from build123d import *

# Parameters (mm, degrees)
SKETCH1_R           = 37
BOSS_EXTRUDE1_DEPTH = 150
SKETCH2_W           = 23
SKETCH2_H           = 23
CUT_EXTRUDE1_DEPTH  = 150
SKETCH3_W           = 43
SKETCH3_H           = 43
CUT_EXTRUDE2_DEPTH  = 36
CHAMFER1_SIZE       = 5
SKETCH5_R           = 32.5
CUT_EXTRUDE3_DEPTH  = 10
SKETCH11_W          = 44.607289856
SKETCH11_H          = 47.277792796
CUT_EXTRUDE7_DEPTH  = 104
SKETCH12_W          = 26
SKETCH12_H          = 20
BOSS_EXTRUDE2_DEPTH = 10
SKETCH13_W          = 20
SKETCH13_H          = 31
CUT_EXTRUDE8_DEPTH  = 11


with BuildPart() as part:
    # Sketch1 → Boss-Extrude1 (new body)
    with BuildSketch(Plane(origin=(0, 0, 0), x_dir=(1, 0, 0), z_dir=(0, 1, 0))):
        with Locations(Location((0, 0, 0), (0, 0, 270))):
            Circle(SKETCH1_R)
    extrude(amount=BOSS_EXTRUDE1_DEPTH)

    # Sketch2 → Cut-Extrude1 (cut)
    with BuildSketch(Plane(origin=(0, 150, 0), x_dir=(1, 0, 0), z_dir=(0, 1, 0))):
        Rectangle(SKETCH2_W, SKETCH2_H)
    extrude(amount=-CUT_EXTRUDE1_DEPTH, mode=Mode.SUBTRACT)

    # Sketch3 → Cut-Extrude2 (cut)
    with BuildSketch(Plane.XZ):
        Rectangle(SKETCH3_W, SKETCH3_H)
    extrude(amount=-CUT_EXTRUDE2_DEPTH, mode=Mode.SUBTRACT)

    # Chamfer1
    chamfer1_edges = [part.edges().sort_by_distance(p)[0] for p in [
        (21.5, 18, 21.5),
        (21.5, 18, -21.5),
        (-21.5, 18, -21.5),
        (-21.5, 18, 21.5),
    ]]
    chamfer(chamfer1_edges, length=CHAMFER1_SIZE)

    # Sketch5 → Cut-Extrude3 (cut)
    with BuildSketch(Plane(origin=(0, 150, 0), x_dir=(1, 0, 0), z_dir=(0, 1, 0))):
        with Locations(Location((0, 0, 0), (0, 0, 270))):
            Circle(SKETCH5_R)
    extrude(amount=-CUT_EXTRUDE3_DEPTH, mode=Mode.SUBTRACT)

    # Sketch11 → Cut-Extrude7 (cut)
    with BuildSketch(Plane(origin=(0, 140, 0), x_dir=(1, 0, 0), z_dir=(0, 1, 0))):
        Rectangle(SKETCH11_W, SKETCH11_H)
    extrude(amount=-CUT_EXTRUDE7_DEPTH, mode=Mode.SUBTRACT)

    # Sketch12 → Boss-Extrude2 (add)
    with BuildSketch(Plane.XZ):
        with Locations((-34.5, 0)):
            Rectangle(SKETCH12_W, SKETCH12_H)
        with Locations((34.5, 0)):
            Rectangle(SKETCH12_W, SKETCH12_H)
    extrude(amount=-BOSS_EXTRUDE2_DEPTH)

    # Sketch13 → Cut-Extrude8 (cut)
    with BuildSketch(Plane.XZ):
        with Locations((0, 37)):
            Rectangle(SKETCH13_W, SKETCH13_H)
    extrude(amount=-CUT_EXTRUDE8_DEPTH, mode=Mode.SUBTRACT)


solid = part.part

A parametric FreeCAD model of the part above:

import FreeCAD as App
import Part
import Sketcher
from FreeCAD import Vector
Q = App.Units.Quantity


def edges_at(feature, points):
    """Names of the edges that pass closest to the given points."""
    edges = feature.Shape.Edges
    near = lambda p: min(range(len(edges)), key=lambda i: edges[i].distToShape(Part.Vertex(*p))[0])
    return sorted({f"Edge{near(p) + 1}" for p in points})


def add_polygon(sketch, points):
    """Adds a closed chain of lines whose ends are joined by coincident constraints."""
    first, n = sketch.GeometryCount, len(points)
    for a, b in zip(points, points[1:] + points[:1]):
        sketch.addGeometry(Part.LineSegment(App.Vector(*a, 0), App.Vector(*b, 0)), False)
    for i in range(n):
        sketch.addConstraint(Sketcher.Constraint("Coincident", first + i, 2, first + (i + 1) % n, 1))

doc = App.newDocument("Part")
body = doc.addObject("PartDesign::Body", "Body")

# Sketch on XZ plane
sketch1 = body.newObject("Sketcher::SketchObject", "Sketch")
sketch1.AttachmentSupport = (doc.getObject("XZ_Plane"), [""])
sketch1.MapMode = "FlatFace"
sketch1.addGeometry(Part.Circle(Vector(0, 0, 0), Vector(0, 0, 1), 37), False)
sketch1.addConstraint(Sketcher.Constraint("Coincident", 0, 3, -1, 1))
sketch1.addConstraint(Sketcher.Constraint("Diameter", 0, Q("74 mm")))
pad1 = body.newObject("PartDesign::Pad", "Pad")
pad1.Profile = sketch1
pad1.Length = 150
pad1.Reversed = True

# Sketch on XZ plane
sketch2 = body.newObject("Sketcher::SketchObject", "Sketch001")
sketch2.AttachmentSupport = (doc.getObject("XZ_Plane"), [""])
sketch2.MapMode = "FlatFace"
sketch2.AttachmentOffset = App.Placement(Vector(0, 0, -150), App.Rotation())
add_polygon(sketch2, [(-12, -12), (-12, 12), (12, 12), (12, -12)])  # lines 0-3
sketch2.addConstraint(Sketcher.Constraint("Vertical", 0))
sketch2.addConstraint(Sketcher.Constraint("Horizontal", 1))
sketch2.addConstraint(Sketcher.Constraint("Vertical", 2))
sketch2.addConstraint(Sketcher.Constraint("Horizontal", 3))
sketch2.addConstraint(Sketcher.Constraint("Symmetric", 0, 2, 2, 2, -1, 1))
sketch2.addConstraint(Sketcher.Constraint("Equal", 3, 0))
sketch2.addConstraint(Sketcher.Constraint("DistanceX", 1, 1, 1, 2, Q("23 mm")))
pocket1 = body.newObject("PartDesign::Pocket", "Pocket")
pocket1.Profile = sketch2
pocket1.Length = 150
pocket1.Reversed = True

# Sketch on XZ plane
sketch3 = body.newObject("Sketcher::SketchObject", "Sketch002")
sketch3.AttachmentSupport = (doc.getObject("XZ_Plane"), [""])
sketch3.MapMode = "FlatFace"
add_polygon(sketch3, [(-22, 22), (-22, -22), (22, -22), (22, 22)])  # lines 0-3
sketch3.addConstraint(Sketcher.Constraint("Vertical", 0))
sketch3.addConstraint(Sketcher.Constraint("Horizontal", 1))
sketch3.addConstraint(Sketcher.Constraint("Vertical", 2))
sketch3.addConstraint(Sketcher.Constraint("Horizontal", 3))
sketch3.addConstraint(Sketcher.Constraint("Symmetric", 0, 2, 2, 2, -1, 1))
sketch3.addConstraint(Sketcher.Constraint("Equal", 3, 0))
sketch3.addConstraint(Sketcher.Constraint("DistanceX", 1, 1, 1, 2, Q("43 mm")))
pocket2 = body.newObject("PartDesign::Pocket", "Pocket001")
pocket2.Profile = sketch3
pocket2.Length = 36
doc.recompute()

chamfer = body.newObject("PartDesign::Chamfer", "Chamfer")
chamfer.Base = (pocket2, edges_at(pocket2, [
    (21.5, 18, 21.5),
    (21.5, 18, -21.5),
    (-21.5, 18, -21.5),
    (-21.5, 18, 21.5),
]))
chamfer.Size = 5

# Sketch on XZ plane
sketch4 = body.newObject("Sketcher::SketchObject", "Sketch003")
sketch4.AttachmentSupport = (doc.getObject("XZ_Plane"), [""])
sketch4.MapMode = "FlatFace"
sketch4.AttachmentOffset = App.Placement(Vector(0, 0, -150), App.Rotation())
sketch4.addGeometry(Part.Circle(Vector(0, 0, 0), Vector(0, 0, 1), 32), False)
sketch4.addConstraint(Sketcher.Constraint("Coincident", 0, 3, -1, 1))
sketch4.addConstraint(Sketcher.Constraint("Diameter", 0, Q("65 mm")))
pocket3 = body.newObject("PartDesign::Pocket", "Pocket002")
pocket3.Profile = sketch4
pocket3.Length = 10
pocket3.Reversed = True

# Sketch on XZ plane
sketch5 = body.newObject("Sketcher::SketchObject", "Sketch004")
sketch5.AttachmentSupport = (doc.getObject("XZ_Plane"), [""])
sketch5.MapMode = "FlatFace"
sketch5.AttachmentOffset = App.Placement(Vector(0, 0, -140), App.Rotation())
add_polygon(sketch5, [(-22, -24), (-22, 24), (22, 24), (22, -24)])  # lines 0-3
sketch5.addConstraint(Sketcher.Constraint("Vertical", 0))
sketch5.addConstraint(Sketcher.Constraint("Horizontal", 1))
sketch5.addConstraint(Sketcher.Constraint("Vertical", 2))
sketch5.addConstraint(Sketcher.Constraint("Horizontal", 3))
sketch5.addConstraint(Sketcher.Constraint("Symmetric", 0, 2, 2, 2, -1, 1))
sketch5.addConstraint(Sketcher.Constraint("DistanceX", 1, 1, 1, 2, Q("44.60729 mm")))
sketch5.addConstraint(Sketcher.Constraint("DistanceY", 0, 1, 0, 2, Q("47.277793 mm")))
pocket4 = body.newObject("PartDesign::Pocket", "Pocket003")
pocket4.Profile = sketch5
pocket4.Length = 104
pocket4.Reversed = True

# Sketch on XZ plane
sketch6 = body.newObject("Sketcher::SketchObject", "Sketch005")
sketch6.AttachmentSupport = (doc.getObject("XZ_Plane"), [""])
sketch6.MapMode = "FlatFace"
add_polygon(sketch6, [(-48, 10), (-48, -10), (-22, -10), (-22, 10)])  # lines 0-3
add_polygon(sketch6, [(22, 10), (22, -10), (48, -10), (48, 10)])  # lines 4-7
sketch6.addConstraint(Sketcher.Constraint("Vertical", 0))
sketch6.addConstraint(Sketcher.Constraint("Horizontal", 1))
sketch6.addConstraint(Sketcher.Constraint("Vertical", 2))
sketch6.addConstraint(Sketcher.Constraint("Horizontal", 3))
sketch6.addConstraint(Sketcher.Constraint("Vertical", 4))
sketch6.addConstraint(Sketcher.Constraint("Horizontal", 5))
sketch6.addConstraint(Sketcher.Constraint("Vertical", 6))
sketch6.addConstraint(Sketcher.Constraint("Horizontal", 7))
sketch6.addConstraint(Sketcher.Constraint("Symmetric", 2, 2, 4, 2, -1, 1))
sketch6.addConstraint(Sketcher.Constraint("Symmetric", 0, 2, 6, 2, -1, 1))
sketch6.addConstraint(Sketcher.Constraint("Horizontal", 1, 2, 4, 2))
sketch6.addConstraint(Sketcher.Constraint("DistanceX", 1, 1, 1, 2, Q("26 mm")))
sketch6.addConstraint(Sketcher.Constraint("DistanceY", 0, 2, 0, 1, Q("20 mm")))
sketch6.addConstraint(Sketcher.Constraint("DistanceX", 1, 2, 4, 2, Q("43 mm")))
pad2 = body.newObject("PartDesign::Pad", "Pad001")
pad2.Profile = sketch6
pad2.Length = 10
pad2.Reversed = True

# Sketch on XZ plane
sketch7 = body.newObject("Sketcher::SketchObject", "Sketch006")
sketch7.AttachmentSupport = (doc.getObject("XZ_Plane"), [""])
sketch7.MapMode = "FlatFace"
add_polygon(sketch7, [(-10, 52), (-10, 22), (10, 22), (10, 52)])  # lines 0-3
sketch7.addConstraint(Sketcher.Constraint("Vertical", 0))
sketch7.addConstraint(Sketcher.Constraint("Horizontal", 1))
sketch7.addConstraint(Sketcher.Constraint("Vertical", 2))
sketch7.addConstraint(Sketcher.Constraint("Horizontal", 3))
sketch7.addConstraint(Sketcher.Constraint("DistanceX", 1, 1, 1, 2, Q("20 mm")))
sketch7.addConstraint(Sketcher.Constraint("DistanceY", 0, 2, 0, 1, Q("31 mm")))
sketch7.addConstraint(Sketcher.Constraint("DistanceX", 0, 2, -1, 1, Q("10 mm")))
sketch7.addConstraint(Sketcher.Constraint("DistanceY", -1, 1, 0, 2, Q("21.5 mm")))
pocket5 = body.newObject("PartDesign::Pocket", "Pocket004")
pocket5.Profile = sketch7
pocket5.Length = 11

doc.recompute()
